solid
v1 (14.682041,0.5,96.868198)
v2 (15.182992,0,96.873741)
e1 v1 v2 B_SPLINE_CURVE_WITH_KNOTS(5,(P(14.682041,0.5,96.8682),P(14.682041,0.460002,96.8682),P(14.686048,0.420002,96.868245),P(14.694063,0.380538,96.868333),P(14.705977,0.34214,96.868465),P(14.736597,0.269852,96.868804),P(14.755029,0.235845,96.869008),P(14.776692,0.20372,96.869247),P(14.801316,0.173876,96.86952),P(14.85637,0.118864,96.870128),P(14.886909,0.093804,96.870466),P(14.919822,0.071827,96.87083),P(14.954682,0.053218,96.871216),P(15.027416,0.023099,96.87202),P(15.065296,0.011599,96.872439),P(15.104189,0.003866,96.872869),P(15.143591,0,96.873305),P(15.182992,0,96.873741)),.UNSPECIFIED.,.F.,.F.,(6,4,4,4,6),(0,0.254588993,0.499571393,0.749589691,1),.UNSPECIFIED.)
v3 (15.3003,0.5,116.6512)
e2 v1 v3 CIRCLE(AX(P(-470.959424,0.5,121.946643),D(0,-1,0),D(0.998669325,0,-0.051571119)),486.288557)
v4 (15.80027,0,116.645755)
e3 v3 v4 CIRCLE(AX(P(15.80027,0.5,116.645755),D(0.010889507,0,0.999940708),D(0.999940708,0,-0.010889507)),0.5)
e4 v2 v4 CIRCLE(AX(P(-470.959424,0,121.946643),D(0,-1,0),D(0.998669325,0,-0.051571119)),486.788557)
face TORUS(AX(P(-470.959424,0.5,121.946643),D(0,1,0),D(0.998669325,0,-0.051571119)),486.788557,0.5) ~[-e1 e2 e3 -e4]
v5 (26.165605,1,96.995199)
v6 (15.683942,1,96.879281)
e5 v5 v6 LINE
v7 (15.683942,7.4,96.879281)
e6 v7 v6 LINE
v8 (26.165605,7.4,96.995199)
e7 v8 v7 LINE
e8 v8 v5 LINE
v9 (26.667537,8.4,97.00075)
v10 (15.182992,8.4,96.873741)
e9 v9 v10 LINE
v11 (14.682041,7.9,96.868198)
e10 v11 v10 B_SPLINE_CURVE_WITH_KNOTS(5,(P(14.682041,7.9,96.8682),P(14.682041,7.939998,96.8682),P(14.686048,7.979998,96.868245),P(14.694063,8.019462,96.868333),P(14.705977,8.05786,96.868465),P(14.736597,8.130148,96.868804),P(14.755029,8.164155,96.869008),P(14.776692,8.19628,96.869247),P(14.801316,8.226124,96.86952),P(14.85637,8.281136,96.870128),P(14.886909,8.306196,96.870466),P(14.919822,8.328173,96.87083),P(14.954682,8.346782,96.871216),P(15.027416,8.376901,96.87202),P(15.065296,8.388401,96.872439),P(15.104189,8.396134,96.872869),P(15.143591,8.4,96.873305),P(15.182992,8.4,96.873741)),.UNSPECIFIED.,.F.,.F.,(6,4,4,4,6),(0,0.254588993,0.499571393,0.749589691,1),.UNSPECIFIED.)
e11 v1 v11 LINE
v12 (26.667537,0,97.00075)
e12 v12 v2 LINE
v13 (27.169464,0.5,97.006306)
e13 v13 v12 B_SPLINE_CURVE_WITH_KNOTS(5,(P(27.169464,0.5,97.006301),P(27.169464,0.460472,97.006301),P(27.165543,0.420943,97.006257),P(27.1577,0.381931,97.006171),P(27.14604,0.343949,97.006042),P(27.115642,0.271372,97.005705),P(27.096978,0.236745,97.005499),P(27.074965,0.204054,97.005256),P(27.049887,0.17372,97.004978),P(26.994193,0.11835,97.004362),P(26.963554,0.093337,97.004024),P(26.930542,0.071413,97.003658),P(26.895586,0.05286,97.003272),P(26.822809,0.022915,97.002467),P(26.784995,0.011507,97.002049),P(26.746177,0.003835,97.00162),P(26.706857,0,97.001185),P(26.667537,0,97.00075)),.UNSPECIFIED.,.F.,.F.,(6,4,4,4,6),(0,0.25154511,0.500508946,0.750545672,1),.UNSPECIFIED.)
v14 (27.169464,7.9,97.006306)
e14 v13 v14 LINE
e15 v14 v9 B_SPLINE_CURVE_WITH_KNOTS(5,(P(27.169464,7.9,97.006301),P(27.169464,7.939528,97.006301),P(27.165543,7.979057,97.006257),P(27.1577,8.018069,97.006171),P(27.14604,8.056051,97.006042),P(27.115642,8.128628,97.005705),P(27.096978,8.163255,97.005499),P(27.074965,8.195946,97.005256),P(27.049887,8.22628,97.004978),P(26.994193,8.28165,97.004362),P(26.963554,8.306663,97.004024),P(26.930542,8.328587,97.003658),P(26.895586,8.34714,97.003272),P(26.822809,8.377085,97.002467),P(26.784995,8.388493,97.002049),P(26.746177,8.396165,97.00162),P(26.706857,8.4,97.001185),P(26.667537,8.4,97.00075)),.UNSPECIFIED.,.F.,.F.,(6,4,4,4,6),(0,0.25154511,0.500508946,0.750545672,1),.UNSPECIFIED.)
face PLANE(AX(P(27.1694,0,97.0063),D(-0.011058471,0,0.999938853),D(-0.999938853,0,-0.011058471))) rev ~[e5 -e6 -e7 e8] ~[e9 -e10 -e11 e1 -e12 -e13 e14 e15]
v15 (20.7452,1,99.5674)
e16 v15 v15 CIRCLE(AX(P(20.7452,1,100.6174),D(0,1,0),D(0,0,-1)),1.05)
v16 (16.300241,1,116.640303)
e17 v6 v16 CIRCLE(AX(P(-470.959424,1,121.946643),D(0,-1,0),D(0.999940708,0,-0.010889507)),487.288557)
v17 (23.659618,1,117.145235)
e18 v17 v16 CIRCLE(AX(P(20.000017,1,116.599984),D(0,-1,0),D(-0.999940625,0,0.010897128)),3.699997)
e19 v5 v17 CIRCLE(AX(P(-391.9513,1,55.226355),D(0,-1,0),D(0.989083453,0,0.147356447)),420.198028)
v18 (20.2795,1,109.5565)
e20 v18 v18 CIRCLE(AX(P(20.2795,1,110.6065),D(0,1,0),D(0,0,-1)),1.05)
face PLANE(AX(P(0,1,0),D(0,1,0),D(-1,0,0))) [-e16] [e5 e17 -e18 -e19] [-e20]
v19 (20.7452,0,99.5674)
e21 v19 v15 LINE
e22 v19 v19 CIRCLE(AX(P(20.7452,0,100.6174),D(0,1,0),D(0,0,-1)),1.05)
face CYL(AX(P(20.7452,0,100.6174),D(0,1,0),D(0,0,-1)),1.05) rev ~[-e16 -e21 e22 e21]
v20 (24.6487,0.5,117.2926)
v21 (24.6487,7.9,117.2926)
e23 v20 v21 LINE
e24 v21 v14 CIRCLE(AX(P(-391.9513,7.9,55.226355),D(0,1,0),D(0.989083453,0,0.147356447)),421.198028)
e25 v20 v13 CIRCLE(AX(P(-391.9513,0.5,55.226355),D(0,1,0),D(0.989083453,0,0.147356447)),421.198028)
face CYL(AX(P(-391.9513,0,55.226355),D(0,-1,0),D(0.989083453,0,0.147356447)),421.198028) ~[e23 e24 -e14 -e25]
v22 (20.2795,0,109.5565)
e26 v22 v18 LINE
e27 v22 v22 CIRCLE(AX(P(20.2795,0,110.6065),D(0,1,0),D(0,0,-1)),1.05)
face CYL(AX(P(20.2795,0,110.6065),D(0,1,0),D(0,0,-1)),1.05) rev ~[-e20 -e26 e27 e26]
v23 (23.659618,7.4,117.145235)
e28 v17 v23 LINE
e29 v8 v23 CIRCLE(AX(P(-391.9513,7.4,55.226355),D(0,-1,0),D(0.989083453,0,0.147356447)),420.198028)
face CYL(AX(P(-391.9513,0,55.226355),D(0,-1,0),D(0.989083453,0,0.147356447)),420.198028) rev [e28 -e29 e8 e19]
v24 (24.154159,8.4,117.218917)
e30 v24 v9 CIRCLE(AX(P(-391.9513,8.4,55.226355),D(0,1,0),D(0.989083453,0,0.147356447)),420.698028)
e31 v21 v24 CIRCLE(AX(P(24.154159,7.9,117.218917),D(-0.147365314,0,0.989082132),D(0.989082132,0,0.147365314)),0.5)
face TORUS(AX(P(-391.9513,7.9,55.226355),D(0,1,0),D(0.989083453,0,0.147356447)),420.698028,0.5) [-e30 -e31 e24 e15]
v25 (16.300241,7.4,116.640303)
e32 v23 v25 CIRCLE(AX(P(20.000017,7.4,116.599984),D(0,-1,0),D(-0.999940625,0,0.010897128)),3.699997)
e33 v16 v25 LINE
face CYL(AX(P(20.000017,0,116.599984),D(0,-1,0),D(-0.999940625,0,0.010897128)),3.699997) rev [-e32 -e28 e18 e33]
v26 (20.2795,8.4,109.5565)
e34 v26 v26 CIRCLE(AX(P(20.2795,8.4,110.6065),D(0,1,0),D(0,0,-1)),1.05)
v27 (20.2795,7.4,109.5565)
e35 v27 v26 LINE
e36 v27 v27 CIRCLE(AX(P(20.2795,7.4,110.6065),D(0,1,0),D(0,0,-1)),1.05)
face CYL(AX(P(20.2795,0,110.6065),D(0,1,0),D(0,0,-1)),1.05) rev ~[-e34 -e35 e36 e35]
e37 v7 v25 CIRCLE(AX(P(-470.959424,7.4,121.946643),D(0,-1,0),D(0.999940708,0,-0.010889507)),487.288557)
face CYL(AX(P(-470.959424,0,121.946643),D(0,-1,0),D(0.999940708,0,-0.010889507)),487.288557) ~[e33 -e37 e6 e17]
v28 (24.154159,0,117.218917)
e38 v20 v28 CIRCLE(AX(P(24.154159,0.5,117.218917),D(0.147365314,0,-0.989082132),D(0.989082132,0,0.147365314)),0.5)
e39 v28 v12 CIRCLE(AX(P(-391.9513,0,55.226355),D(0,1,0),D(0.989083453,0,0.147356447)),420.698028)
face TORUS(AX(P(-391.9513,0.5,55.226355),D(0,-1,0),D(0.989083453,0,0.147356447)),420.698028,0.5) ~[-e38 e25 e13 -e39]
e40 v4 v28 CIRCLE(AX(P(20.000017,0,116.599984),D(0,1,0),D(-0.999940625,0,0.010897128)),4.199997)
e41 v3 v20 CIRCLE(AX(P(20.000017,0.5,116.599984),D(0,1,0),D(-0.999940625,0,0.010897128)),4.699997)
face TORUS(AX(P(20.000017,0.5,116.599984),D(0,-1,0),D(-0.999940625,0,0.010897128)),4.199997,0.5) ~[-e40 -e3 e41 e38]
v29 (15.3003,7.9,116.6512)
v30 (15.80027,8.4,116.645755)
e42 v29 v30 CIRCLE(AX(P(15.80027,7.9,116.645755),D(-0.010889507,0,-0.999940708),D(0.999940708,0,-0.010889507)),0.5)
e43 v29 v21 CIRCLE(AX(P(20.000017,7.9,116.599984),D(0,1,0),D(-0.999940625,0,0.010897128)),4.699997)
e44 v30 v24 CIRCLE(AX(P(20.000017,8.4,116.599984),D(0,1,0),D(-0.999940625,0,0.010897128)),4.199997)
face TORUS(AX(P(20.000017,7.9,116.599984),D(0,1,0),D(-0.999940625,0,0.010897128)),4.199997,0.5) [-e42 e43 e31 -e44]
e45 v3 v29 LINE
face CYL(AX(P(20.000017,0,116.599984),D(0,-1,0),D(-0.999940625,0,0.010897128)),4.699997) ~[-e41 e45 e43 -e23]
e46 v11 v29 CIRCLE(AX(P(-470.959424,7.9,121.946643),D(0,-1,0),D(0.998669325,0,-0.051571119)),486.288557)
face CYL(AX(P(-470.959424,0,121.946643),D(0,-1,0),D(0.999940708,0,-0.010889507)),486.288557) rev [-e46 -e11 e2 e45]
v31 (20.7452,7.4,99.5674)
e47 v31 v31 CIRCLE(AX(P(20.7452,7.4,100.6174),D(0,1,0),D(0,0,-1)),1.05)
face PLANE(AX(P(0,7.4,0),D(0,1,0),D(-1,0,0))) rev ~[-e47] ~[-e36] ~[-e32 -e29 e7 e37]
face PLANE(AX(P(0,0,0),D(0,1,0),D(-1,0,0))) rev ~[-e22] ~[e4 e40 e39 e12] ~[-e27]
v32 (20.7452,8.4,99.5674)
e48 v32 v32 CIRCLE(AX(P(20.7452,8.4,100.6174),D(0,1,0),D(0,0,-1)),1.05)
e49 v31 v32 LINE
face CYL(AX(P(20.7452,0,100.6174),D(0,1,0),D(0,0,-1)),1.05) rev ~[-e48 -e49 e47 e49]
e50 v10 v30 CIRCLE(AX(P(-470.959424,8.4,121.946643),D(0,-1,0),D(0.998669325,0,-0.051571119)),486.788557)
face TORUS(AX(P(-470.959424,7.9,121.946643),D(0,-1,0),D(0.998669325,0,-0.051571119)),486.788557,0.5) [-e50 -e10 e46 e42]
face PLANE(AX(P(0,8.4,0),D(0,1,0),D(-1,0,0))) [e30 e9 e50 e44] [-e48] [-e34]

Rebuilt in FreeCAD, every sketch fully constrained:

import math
import FreeCAD as App
import Part
import Sketcher

V = App.Vector


def edges_at(feature, points):
    """Names of the edges that pass closest to the given points."""
    edges = feature.Shape.Edges
    near = lambda p: min(range(len(edges)), key=lambda i: edges[i].distToShape(Part.Vertex(*p))[0])
    return sorted({f"Edge{near(p) + 1}" for p in points})


def faces_at(feature, points):
    """Names of the faces that lie closest to the given points."""
    faces = feature.Shape.Faces
    near = lambda p: min(range(len(faces)), key=lambda i: faces[i].distToShape(Part.Vertex(*p))[0])
    return sorted({f"Face{near(p) + 1}" for p in points})

doc = App.newDocument("Part")
body = doc.addObject("PartDesign::Body", "Body")

# Sketch on XZ plane
sketch1 = body.newObject("Sketcher::SketchObject", "Sketch")
sketch1.AttachmentSupport = (doc.getObject("XZ_Plane"), [""])
sketch1.MapMode = "FlatFace"
sketch1.addGeometry([
    Part.ArcOfCircle(Part.Circle(V(-470.959424, 121.946643, 0), V(0, 0, 1), 486.288557), math.radians(-2.956119), math.radians(-0.623935)),
    Part.ArcOfCircle(Part.Circle(V(20, 116.6, 0), V(0, 0, 1), 4.699979), math.radians(8.474044), math.radians(179.375827)),
    Part.ArcOfCircle(Part.Circle(V(-391.9513, 55.226355, 0), V(0, 0, 1), 421.198028), math.radians(5.692709), math.radians(8.47376)),
    Part.LineSegment(V(27.1694, 97.0063, 0), V(14.682, 96.8682, 0)),
], False)
sketch1.addConstraint([
    Sketcher.Constraint("Coincident", 0, 2, 1, 2),
    Sketcher.Constraint("Coincident", 1, 1, 2, 2),
    Sketcher.Constraint("Coincident", 2, 1, 3, 1),
    Sketcher.Constraint("Coincident", 3, 2, 0, 1),
    Sketcher.Constraint("DistanceX", -1, 1, 1, 3, 20.0),
    Sketcher.Constraint("Radius", 1, 4.7),
    Sketcher.Constraint("Radius", 2, 421.198),
    Sketcher.Constraint("DistanceY", -1, 1, 1, 3, 116.6),
    Sketcher.Constraint("Radius", 0, 486.2886),
    Sketcher.Constraint("DistanceX", 2, 3, 1, 1, 416.6),
    Sketcher.Constraint("DistanceY", 2, 3, 2, 1, 41.78),
    Sketcher.Constraint("DistanceX", -1, 1, 3, 2, 14.682),
    Sketcher.Constraint("DistanceX", 0, 3, 1, 1, 495.608),
    Sketcher.Constraint("DistanceY", 1, 1, 0, 3, 4.654),
    Sketcher.Constraint("DistanceY", 2, 1, 0, 2, 19.645),
])
pad1 = body.newObject("PartDesign::Pad", "Pad")
pad1.Profile = sketch1
pad1.Length = 8.4
pad1.Reversed = True
doc.recompute()

thickness = body.newObject("PartDesign::Thickness", "Thickness")
thickness.Base = (pad1, faces_at(pad1, [(23.007, 2.8, 96.96)]))
thickness.Value = 1
thickness.Reversed = True
thickness.Join = "Intersection"

# Sketch on XZ plane
sketch2 = body.newObject("Sketcher::SketchObject", "Sketch001")
sketch2.AttachmentSupport = (doc.getObject("XZ_Plane"), [""])
sketch2.MapMode = "FlatFace"
sketch2.addGeometry([
    Part.Circle(V(12.2, 4.1, 0), V(0, 0, 1), 1.1),
    Part.Circle(V(12.2, 32.5, 0), V(0, 0, 1), 1.1),
    Part.Circle(V(20.3, 110.6, 0), V(0, 0, 1), 1.1),
    Part.Circle(V(20.7, 100.6, 0), V(0, 0, 1), 1.1),
], False)
sketch2.addConstraint([
    Sketcher.Constraint("Equal", 0, 1),
    Sketcher.Constraint("Equal", 1, 2),
    Sketcher.Constraint("Equal", 2, 3),
    Sketcher.Constraint("Vertical", 0, 3, 1, 3),
    Sketcher.Constraint("Diameter", 0, 2.1),
    Sketcher.Constraint("DistanceX", -1, 1, 0, 3, 12.2),
    Sketcher.Constraint("DistanceY", -1, 1, 0, 3, 4.1),
    Sketcher.Constraint("DistanceY", -1, 1, 1, 3, 32.5),
    Sketcher.Constraint("DistanceY", 3, 3, 2, 3, 9.989),
    Sketcher.Constraint("DistanceX", -1, 1, 2, 3, 20.2795),
    Sketcher.Constraint("DistanceY", -1, 1, 2, 3, 110.6065),
    Sketcher.Constraint("DistanceX", -1, 1, 3, 3, 20.7452),
])
doc.recompute()
hole = body.newObject("PartDesign::Hole", "Hole")
hole.Profile = sketch2
hole.ThreadType = "None"
hole.Diameter = 2.1
hole.DepthType = "ThroughAll"
doc.recompute()

fillet = body.newObject("PartDesign::Fillet", "Fillet")
fillet.Base = (hole, edges_at(hole, [
    (19.678, 8.4, 121.289),
    (15.092, 8.4, 106.757),
    (26.032, 8.4, 107.165),
    (19.678, 0, 121.289),
    (15.092, 0, 106.757),
    (26.032, 0, 107.165),
]))
fillet.Radius = 0.5

doc.recompute()
